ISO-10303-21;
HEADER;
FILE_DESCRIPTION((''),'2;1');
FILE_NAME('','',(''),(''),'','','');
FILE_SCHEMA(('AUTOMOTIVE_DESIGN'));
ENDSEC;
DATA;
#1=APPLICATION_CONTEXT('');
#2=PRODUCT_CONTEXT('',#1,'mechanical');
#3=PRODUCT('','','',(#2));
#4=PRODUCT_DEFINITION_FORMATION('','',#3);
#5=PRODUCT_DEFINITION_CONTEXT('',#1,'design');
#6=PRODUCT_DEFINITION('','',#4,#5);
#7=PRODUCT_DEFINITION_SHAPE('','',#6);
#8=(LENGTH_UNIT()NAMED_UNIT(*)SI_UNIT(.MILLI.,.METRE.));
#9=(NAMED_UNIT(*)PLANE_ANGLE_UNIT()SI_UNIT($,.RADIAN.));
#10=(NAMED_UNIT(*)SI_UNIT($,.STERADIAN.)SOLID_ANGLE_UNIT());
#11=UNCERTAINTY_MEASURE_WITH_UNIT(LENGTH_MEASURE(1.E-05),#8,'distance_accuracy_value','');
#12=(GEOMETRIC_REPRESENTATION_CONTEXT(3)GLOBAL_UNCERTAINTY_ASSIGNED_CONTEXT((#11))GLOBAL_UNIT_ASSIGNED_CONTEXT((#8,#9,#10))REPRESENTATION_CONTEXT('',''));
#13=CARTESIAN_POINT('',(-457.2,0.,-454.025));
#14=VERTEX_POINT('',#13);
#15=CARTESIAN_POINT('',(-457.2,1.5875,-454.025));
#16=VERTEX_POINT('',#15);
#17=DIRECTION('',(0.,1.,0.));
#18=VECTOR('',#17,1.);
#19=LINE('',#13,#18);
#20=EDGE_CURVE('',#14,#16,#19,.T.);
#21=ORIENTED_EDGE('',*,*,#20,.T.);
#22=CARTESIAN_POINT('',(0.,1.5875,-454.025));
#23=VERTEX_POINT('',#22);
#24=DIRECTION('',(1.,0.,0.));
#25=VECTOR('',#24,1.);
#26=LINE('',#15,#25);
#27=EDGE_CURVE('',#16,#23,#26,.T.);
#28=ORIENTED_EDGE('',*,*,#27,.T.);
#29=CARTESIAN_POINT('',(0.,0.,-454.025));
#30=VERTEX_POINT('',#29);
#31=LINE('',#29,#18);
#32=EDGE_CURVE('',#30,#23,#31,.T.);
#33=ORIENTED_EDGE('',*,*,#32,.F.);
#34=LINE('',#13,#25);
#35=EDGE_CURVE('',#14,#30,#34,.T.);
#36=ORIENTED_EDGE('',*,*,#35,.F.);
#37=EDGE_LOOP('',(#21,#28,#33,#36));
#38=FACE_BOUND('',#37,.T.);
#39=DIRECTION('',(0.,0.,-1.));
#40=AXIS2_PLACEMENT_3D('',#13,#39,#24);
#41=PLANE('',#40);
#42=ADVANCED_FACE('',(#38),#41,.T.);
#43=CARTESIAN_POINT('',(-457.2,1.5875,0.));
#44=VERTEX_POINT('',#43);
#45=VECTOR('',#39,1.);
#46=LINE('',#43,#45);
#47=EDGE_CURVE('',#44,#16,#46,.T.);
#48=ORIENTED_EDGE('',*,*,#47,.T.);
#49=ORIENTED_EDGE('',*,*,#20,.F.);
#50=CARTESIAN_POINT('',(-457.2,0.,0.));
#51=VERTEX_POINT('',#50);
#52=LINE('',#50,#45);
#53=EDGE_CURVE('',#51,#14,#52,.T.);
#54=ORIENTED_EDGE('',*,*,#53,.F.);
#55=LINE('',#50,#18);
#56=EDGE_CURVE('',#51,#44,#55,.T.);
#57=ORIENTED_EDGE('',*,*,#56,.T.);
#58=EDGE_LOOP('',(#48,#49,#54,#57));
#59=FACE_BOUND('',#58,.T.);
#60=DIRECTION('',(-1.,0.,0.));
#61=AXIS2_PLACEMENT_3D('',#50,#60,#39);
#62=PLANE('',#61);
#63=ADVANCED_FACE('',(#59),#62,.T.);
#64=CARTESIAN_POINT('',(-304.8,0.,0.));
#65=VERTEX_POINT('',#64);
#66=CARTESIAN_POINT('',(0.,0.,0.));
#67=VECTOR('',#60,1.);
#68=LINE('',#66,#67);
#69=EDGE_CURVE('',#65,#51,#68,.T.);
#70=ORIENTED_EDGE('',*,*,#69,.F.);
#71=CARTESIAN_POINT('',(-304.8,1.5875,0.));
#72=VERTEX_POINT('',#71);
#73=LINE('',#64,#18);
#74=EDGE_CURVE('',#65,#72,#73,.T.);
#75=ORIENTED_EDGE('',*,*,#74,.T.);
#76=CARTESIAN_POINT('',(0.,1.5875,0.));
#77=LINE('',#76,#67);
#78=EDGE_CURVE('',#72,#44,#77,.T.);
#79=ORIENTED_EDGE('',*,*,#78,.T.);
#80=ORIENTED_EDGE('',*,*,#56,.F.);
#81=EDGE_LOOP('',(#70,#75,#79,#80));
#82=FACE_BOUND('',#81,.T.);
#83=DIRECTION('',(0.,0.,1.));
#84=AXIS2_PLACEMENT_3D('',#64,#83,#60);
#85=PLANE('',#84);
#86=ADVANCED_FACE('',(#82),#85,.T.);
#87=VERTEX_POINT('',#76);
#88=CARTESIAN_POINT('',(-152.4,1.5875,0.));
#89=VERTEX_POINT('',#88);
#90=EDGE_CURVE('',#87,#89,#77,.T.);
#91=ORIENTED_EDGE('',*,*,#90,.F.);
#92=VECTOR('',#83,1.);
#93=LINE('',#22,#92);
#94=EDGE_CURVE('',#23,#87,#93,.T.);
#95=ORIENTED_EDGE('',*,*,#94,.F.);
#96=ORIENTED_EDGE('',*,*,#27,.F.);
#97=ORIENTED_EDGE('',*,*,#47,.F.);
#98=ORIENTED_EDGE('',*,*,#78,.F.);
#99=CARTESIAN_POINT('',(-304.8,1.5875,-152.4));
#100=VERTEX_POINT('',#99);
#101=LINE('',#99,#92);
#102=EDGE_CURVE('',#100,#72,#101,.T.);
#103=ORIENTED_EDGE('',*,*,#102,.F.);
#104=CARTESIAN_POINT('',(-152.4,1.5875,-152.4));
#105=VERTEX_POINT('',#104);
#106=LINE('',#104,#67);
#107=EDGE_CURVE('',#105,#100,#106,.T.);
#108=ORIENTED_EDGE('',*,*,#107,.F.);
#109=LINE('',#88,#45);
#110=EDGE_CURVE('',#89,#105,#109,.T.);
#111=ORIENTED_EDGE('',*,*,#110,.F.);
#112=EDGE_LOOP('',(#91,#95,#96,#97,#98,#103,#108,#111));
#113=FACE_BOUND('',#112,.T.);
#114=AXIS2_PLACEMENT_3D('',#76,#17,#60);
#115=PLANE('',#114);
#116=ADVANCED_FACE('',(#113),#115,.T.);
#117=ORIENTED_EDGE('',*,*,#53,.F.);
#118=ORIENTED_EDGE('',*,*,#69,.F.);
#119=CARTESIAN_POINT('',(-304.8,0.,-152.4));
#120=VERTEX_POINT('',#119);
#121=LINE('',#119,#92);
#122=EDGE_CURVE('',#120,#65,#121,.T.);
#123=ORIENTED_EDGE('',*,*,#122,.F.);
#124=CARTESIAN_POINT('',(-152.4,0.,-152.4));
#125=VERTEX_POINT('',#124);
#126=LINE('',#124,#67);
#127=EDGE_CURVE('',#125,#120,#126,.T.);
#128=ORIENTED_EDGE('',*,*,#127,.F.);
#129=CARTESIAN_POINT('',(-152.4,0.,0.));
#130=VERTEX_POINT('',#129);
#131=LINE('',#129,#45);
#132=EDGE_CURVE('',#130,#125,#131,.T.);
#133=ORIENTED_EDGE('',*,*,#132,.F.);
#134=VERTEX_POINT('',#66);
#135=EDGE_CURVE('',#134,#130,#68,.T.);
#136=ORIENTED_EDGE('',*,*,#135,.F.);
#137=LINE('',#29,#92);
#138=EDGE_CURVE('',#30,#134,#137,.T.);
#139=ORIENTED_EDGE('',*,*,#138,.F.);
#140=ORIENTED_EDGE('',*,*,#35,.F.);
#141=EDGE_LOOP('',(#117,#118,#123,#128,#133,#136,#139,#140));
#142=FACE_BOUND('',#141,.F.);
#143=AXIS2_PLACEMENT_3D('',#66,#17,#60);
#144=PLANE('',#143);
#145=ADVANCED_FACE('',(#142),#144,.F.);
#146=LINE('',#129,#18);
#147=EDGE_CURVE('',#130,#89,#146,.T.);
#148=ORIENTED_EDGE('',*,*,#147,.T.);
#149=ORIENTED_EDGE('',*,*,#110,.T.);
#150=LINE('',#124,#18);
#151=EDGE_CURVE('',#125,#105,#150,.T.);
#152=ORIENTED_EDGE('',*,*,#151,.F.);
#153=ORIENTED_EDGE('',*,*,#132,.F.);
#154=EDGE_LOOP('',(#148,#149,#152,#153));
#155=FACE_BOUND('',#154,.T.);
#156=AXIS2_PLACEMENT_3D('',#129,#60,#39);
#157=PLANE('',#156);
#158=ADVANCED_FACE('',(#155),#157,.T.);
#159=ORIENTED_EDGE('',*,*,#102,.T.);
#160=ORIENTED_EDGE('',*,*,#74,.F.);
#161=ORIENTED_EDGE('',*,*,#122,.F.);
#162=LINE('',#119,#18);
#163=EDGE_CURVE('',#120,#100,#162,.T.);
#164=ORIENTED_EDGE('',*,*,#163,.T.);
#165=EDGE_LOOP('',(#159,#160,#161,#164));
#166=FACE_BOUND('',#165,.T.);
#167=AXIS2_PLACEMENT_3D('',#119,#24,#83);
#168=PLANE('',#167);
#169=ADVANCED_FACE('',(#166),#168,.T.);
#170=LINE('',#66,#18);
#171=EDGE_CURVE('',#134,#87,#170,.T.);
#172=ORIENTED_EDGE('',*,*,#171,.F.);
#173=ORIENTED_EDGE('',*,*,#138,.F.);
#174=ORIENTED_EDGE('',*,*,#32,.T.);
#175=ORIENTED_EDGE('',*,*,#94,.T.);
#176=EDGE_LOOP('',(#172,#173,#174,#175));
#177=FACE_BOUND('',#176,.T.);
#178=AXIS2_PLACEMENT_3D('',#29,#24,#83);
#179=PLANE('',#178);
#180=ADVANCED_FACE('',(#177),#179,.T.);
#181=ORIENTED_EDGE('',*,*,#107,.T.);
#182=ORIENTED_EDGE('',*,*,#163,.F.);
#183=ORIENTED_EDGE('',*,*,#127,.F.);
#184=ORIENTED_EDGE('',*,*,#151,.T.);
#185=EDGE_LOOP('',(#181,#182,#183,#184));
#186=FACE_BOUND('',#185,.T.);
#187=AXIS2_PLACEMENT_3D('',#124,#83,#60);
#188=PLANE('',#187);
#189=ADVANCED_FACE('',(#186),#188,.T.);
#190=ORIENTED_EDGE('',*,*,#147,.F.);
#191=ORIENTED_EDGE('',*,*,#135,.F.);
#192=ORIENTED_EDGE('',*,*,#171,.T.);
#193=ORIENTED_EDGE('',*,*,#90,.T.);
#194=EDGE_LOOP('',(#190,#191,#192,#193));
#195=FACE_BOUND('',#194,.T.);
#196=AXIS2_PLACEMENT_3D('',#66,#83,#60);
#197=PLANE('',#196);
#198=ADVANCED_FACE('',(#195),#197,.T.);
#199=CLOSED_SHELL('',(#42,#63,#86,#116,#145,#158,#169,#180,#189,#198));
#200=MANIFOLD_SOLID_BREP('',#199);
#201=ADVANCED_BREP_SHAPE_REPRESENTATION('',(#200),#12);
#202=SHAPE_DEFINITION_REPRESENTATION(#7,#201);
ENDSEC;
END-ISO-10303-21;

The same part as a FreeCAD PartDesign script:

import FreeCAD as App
import Part
import Sketcher

V = App.Vector
Q = App.Units.Quantity


def add_polygon(sketch, points):
    """Adds a closed chain of lines whose ends are joined by coincident constraints."""
    first, n = sketch.GeometryCount, len(points)
    for a, b in zip(points, points[1:] + points[:1]):
        sketch.addGeometry(Part.LineSegment(App.Vector(*a, 0), App.Vector(*b, 0)), False)
    for i in range(n):
        sketch.addConstraint(Sketcher.Constraint("Coincident", first + i, 2, first + (i + 1) % n, 1))

doc = App.newDocument("Part")
params = doc.addObject("Spreadsheet::Sheet", "Params")
for row, (alias, value) in enumerate([
    ("sketch1_width", "6 in"),
    ("sketch1_height", "17.875 in"),
    ("pad1_length", "0.0625 in"),
], start=1):
    params.set(f"A{row}", alias)
    params.set(f"B{row}", "=" + value)
    params.setAlias(f"B{row}", alias)

body = doc.addObject("PartDesign::Body", "Body")

# Sketch on XZ plane
sketch1 = body.newObject("Sketcher::SketchObject", "Sketch")
sketch1.AttachmentSupport = (doc.getObject("XZ_Plane"), [""])
sketch1.MapMode = "FlatFace"
add_polygon(sketch1, [(-152, 0), (0, 0), (0, -454), (-457, -454), (-457, 0), (-305, 0), (-305, -152), (-152, -152)])  # lines 0-7
sketch1.addConstraint([
    Sketcher.Constraint("Horizontal", 0),
    Sketcher.Constraint("Vertical", 1),
    Sketcher.Constraint("Horizontal", 2),
    Sketcher.Constraint("Vertical", 3),
    Sketcher.Constraint("Horizontal", 4),
    Sketcher.Constraint("Vertical", 5),
    Sketcher.Constraint("Horizontal", 6),
    Sketcher.Constraint("Vertical", 7),
    Sketcher.Constraint("Coincident", 0, 2, -1, 1),
    Sketcher.Constraint("PointOnObject", 3, 2, -1),
    Sketcher.Constraint("Equal", 0, 4),
    Sketcher.Constraint("Equal", 4, 6),
    Sketcher.Constraint("Equal", 6, 5),
    Sketcher.Constraint("DistanceX", 0, 1, 0, 2, Q("6 in")),
    Sketcher.Constraint("DistanceY", 1, 2, 1, 1, Q("17.875 in")),
])
sketch1.setExpression("Constraints[21]", "Params.sketch1_width")
sketch1.setExpression("Constraints[22]", "Params.sketch1_height")
pad1 = body.newObject("PartDesign::Pad", "Pad")
pad1.Profile = sketch1
pad1.setExpression("Length", "Params.pad1_length")
pad1.Reversed = True

doc.recompute()
